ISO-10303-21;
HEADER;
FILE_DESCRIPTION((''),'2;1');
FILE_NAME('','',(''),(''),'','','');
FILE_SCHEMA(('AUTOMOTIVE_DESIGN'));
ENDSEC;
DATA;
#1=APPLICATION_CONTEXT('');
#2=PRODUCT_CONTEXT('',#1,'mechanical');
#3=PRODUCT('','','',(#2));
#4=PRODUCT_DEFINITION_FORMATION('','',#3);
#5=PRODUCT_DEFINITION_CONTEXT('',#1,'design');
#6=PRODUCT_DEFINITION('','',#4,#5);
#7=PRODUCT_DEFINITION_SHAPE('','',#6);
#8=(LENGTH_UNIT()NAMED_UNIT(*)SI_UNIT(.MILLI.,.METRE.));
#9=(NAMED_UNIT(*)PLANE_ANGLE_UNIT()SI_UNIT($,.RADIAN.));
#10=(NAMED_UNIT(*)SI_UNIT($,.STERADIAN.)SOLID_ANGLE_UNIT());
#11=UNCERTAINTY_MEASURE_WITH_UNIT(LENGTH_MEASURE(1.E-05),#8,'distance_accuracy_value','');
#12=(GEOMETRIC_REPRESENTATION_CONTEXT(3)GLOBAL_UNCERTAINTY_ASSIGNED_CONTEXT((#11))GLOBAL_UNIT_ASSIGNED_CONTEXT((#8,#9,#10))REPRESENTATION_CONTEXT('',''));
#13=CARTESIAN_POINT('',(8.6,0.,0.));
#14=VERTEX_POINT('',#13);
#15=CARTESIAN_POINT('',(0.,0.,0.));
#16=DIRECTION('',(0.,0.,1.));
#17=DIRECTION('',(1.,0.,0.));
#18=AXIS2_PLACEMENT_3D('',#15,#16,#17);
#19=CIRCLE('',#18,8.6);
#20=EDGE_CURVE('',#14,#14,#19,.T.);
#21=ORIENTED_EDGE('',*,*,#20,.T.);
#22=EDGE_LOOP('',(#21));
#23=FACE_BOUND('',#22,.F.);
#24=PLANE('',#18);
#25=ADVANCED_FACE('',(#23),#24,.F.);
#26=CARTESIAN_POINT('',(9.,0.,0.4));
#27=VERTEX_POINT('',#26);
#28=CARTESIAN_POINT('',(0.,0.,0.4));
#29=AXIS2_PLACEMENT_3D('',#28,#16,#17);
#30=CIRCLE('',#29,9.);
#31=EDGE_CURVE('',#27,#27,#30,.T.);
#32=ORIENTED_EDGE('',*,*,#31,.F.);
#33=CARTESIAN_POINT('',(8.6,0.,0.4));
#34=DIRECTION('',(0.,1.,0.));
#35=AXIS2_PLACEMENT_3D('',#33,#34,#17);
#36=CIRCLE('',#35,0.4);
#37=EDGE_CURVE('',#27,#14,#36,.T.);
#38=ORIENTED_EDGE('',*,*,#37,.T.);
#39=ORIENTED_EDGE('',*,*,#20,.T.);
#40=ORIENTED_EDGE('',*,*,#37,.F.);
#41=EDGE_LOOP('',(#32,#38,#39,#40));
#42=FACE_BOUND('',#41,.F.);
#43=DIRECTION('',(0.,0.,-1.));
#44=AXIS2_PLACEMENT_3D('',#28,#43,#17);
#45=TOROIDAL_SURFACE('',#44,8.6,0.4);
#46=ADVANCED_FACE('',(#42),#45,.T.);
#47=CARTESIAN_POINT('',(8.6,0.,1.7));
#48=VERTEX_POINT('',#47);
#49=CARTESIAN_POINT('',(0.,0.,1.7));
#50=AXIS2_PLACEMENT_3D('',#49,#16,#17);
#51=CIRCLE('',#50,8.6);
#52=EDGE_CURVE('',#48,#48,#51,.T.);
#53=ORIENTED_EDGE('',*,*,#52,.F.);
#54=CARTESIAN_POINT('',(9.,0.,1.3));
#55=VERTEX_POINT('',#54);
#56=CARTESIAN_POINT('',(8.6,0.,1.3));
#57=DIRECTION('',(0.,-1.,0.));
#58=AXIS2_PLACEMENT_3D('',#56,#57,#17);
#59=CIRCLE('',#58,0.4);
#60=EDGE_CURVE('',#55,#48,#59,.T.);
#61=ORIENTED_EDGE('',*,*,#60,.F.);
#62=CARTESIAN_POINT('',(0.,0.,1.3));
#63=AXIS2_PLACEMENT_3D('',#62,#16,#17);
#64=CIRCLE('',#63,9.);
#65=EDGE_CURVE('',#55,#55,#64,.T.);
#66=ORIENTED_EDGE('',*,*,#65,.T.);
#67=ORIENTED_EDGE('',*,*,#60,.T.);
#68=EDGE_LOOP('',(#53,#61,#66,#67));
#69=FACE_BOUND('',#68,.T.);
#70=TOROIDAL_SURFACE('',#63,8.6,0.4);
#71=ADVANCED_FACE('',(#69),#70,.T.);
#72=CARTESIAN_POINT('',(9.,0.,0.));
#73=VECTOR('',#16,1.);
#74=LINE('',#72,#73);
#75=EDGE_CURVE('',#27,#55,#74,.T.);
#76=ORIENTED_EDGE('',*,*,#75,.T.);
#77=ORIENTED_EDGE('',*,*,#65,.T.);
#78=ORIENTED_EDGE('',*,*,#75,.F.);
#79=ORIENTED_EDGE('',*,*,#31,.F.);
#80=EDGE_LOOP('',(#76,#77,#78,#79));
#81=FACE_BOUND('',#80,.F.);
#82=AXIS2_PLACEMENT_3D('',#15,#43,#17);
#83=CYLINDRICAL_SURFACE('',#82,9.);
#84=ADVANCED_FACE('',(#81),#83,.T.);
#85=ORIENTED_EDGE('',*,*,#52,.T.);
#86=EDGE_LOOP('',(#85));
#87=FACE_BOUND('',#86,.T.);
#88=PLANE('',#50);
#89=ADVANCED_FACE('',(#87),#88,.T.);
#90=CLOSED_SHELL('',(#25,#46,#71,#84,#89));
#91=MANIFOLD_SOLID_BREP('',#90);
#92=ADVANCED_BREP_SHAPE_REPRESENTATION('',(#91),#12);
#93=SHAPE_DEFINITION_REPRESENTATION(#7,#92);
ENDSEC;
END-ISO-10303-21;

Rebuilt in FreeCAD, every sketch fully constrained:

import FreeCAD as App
import Part
import Sketcher

V = App.Vector


def edges_at(feature, points):
    """Names of the edges that pass closest to the given points."""
    edges = feature.Shape.Edges
    near = lambda p: min(range(len(edges)), key=lambda i: edges[i].distToShape(Part.Vertex(*p))[0])
    return sorted({f"Edge{near(p) + 1}" for p in points})

doc = App.newDocument("Part")
body = doc.addObject("PartDesign::Body", "Body")

# Sketch on XY plane
sketch1 = body.newObject("Sketcher::SketchObject", "Sketch")
sketch1.AttachmentSupport = (doc.getObject("XY_Plane"), [""])
sketch1.MapMode = "FlatFace"
sketch1.addGeometry(Part.Circle(V(0, 0, 0), V(0, 0, 1), 9), False)
sketch1.addConstraint([
    Sketcher.Constraint("Coincident", 0, 3, -1, 1),
    Sketcher.Constraint("Diameter", 0, 18.0),
])
pad1 = body.newObject("PartDesign::Pad", "Pad")
pad1.Profile = sketch1
pad1.Length = 1.7
doc.recompute()

fillet = body.newObject("PartDesign::Fillet", "Fillet")
fillet.Base = (pad1, edges_at(pad1, [(-9, 0, 1.7), (-9, 0, 0)]))
fillet.Radius = 0.4

doc.recompute()
